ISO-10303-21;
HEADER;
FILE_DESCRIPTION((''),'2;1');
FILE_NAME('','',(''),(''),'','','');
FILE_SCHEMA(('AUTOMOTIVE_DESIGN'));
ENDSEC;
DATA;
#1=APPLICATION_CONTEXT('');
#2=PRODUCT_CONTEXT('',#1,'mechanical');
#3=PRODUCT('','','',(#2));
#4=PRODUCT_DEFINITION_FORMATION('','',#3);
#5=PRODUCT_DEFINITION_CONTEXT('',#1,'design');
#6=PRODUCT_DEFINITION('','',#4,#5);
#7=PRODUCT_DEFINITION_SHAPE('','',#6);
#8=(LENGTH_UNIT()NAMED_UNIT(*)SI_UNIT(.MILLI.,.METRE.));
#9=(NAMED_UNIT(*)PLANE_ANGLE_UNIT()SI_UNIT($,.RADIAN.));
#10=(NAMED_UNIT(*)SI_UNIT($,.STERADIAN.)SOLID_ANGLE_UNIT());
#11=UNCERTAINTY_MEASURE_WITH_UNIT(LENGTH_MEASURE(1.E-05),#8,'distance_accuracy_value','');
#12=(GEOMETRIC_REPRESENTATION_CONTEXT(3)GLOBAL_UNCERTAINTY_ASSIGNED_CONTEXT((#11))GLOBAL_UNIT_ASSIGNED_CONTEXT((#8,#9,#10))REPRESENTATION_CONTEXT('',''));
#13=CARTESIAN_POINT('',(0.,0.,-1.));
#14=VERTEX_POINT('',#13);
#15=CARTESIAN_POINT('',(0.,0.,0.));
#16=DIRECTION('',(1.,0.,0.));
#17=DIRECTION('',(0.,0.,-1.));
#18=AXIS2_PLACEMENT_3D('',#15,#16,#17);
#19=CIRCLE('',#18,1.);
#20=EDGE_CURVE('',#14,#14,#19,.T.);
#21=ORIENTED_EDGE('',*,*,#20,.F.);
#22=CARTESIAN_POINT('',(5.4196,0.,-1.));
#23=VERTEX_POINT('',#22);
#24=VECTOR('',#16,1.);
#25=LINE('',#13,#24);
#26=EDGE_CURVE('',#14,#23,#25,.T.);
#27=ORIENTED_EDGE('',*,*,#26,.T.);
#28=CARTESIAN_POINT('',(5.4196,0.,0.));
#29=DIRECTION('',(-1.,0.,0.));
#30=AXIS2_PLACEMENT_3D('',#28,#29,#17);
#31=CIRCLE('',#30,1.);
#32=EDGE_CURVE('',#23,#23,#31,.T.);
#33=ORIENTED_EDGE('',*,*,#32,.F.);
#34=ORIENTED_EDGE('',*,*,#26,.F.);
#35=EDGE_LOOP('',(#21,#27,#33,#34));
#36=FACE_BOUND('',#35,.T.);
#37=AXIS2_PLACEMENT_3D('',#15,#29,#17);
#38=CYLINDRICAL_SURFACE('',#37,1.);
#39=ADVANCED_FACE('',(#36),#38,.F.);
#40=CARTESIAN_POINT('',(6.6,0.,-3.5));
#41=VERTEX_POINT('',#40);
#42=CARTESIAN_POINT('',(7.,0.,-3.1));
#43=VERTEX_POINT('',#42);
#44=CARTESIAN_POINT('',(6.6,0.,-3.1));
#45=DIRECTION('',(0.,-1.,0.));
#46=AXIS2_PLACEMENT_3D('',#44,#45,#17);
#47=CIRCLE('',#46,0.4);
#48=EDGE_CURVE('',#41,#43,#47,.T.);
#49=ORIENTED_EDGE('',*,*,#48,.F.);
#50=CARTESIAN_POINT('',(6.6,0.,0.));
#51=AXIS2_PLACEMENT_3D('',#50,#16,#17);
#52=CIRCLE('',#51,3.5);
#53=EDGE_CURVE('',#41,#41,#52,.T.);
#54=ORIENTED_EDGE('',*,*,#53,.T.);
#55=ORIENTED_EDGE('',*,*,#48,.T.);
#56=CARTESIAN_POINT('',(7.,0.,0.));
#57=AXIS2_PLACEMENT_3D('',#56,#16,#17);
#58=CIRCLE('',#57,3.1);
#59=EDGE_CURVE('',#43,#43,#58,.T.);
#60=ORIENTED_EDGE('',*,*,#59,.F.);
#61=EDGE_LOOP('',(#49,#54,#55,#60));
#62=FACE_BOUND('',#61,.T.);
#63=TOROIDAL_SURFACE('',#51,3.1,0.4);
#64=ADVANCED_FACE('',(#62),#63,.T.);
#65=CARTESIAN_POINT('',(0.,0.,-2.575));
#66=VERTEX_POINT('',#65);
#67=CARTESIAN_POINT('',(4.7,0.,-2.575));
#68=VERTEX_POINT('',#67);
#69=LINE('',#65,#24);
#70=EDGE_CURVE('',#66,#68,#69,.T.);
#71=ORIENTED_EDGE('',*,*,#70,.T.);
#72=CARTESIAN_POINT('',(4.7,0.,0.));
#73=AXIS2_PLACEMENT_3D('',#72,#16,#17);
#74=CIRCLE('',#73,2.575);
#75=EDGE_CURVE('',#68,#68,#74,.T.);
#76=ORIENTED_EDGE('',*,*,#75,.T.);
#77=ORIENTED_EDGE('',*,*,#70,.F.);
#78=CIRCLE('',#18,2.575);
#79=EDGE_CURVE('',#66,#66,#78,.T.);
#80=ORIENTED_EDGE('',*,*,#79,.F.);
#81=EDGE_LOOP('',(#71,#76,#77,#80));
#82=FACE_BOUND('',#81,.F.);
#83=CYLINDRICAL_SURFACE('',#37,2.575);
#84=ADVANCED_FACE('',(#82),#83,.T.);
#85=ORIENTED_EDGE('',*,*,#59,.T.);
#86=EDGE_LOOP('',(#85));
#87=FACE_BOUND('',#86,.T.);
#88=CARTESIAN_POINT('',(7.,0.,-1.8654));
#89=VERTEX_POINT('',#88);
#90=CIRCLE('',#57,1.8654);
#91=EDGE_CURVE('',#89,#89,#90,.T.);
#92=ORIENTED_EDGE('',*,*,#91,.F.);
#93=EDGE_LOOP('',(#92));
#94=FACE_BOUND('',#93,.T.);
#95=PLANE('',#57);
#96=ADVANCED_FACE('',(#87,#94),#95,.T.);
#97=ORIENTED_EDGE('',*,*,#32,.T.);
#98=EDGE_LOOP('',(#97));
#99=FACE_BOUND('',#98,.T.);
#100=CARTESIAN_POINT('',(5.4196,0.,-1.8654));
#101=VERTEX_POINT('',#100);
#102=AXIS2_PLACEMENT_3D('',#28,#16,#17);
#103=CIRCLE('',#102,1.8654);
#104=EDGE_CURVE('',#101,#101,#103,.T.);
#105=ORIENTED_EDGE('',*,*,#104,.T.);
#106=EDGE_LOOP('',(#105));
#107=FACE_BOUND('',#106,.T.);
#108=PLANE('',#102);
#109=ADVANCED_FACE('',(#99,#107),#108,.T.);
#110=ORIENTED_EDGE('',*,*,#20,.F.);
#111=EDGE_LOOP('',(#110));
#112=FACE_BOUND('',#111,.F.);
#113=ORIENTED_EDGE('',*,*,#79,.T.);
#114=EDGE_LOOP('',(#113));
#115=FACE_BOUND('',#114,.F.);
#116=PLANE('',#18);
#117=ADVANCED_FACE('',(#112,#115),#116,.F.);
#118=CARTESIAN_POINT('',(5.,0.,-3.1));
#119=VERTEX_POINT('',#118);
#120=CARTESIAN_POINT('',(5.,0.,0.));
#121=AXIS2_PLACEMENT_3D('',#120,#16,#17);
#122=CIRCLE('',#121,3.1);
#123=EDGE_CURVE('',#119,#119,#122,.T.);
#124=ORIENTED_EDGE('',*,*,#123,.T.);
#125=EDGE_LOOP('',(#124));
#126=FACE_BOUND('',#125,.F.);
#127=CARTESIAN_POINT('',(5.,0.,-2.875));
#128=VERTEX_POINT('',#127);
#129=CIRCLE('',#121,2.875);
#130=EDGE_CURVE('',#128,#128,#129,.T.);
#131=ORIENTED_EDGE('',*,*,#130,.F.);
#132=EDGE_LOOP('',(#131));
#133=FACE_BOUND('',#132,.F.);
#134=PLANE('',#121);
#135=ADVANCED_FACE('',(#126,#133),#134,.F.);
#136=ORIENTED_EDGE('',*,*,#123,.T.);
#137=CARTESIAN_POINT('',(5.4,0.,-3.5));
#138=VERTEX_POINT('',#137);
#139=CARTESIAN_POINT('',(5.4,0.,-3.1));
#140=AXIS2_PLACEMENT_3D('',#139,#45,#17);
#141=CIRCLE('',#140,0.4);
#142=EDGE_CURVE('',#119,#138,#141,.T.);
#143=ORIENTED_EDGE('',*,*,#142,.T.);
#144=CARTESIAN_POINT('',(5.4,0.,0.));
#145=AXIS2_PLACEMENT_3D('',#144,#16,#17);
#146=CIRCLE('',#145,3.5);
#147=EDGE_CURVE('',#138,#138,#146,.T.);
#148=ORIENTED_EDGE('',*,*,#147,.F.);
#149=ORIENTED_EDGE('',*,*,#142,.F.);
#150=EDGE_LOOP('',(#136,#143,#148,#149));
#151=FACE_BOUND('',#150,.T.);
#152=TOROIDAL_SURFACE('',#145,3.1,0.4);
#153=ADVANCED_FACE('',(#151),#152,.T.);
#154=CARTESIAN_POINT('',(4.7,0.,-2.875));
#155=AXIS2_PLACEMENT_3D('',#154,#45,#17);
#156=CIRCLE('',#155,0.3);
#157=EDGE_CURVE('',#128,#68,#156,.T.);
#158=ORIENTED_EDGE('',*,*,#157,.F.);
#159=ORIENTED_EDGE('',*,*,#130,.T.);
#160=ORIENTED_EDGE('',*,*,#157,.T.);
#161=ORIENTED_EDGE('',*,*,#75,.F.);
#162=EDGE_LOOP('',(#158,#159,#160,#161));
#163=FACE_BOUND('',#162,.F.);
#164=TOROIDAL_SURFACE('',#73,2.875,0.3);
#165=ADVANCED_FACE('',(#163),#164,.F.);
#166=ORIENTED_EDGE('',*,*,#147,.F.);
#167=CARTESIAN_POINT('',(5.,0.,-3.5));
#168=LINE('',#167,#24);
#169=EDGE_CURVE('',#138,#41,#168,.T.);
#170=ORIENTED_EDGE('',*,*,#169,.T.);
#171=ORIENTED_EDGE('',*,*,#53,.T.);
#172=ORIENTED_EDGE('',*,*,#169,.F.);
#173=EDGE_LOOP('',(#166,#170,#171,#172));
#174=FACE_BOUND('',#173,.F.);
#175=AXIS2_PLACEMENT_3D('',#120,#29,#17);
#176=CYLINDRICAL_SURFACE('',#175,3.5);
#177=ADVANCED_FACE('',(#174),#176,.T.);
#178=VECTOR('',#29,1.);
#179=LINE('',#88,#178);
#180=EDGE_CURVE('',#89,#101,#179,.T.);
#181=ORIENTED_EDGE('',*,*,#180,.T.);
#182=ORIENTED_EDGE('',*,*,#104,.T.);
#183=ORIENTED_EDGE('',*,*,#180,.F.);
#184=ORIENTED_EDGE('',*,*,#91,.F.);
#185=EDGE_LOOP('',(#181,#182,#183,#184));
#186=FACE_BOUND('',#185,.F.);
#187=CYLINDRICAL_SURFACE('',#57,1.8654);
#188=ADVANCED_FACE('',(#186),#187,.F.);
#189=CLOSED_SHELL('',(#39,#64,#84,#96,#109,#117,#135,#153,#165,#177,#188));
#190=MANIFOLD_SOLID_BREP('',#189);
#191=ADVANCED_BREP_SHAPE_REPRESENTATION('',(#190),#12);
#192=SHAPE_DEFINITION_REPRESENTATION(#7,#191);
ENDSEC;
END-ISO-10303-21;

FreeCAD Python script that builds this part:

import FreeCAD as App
import Part
import Sketcher
Q = App.Units.Quantity


def edges_at(feature, points):
    """Names of the edges that pass closest to the given points."""
    edges = feature.Shape.Edges
    near = lambda p: min(range(len(edges)), key=lambda i: edges[i].distToShape(Part.Vertex(*p))[0])
    return sorted({f"Edge{near(p) + 1}" for p in points})

doc = App.newDocument("Part")
body = doc.addObject("PartDesign::Body", "Body")

sketch1 = doc.addObject("Sketcher::SketchObject", "Sketch")
body.addObject(sketch1)
sketch1.AttachmentSupport = (doc.YZ_Plane, [""])
sketch1.MapMode = "FlatFace"
sketch1.addGeometry(Part.Circle(App.Vector(0, 0, 0), App.Vector(0, 0, 1), 2.6), False)
sketch1.addConstraint([
    Sketcher.Constraint("Coincident", 0, 3, -1, 1),
    Sketcher.Constraint("Diameter", 0, Q("5.15 mm")),
])
pad1 = doc.addObject("PartDesign::Pad", "Pad")
body.addObject(pad1)
pad1.Profile = sketch1
pad1.Length = 5

sketch2 = doc.addObject("Sketcher::SketchObject", "Sketch001")
body.addObject(sketch2)
sketch2.AttachmentSupport = (doc.YZ_Plane, [""])
sketch2.MapMode = "FlatFace"
sketch2.AttachmentOffset = App.Placement(App.Vector(0, 0, 5), App.Rotation())
sketch2.addGeometry(Part.Circle(App.Vector(0, 0, 0), App.Vector(0, 0, 1), 3.5), False)
sketch2.addConstraint([
    Sketcher.Constraint("Coincident", 0, 3, -1, 1),
    Sketcher.Constraint("Diameter", 0, Q("7 mm")),
])
pad2 = doc.addObject("PartDesign::Pad", "Pad001")
body.addObject(pad2)
pad2.Profile = sketch2
pad2.Length = 2

sketch3 = doc.addObject("Sketcher::SketchObject", "Sketch002")
body.addObject(sketch3)
sketch3.AttachmentSupport = (doc.YZ_Plane, [""])
sketch3.MapMode = "FlatFace"
sketch3.addGeometry(Part.Circle(App.Vector(0, 0, 0), App.Vector(0, 0, 1), 1), False)
sketch3.addConstraint([
    Sketcher.Constraint("Coincident", 0, 3, -1, 1),
    Sketcher.Constraint("Diameter", 0, Q("2 mm")),
])
pocket1 = doc.addObject("PartDesign::Pocket", "Pocket")
body.addObject(pocket1)
pocket1.Profile = sketch3
pocket1.Length = 7
pocket1.Reversed = True
doc.recompute()

fillet = doc.addObject("PartDesign::Fillet", "Fillet")
body.addObject(fillet)
fillet.Base = (pocket1, edges_at(pocket1, [(5, -0.931, 2.401)]))
fillet.Radius = 0.3
doc.recompute()

fillet2 = doc.addObject("PartDesign::Fillet", "Fillet001")
body.addObject(fillet2)
fillet2.Base = (fillet, edges_at(fillet, [(5, -1.266, 3.263), (7, -1.266, 3.263)]))
fillet2.Radius = 0.4

sketch4 = doc.addObject("Sketcher::SketchObject", "Sketch003")
body.addObject(sketch4)
sketch4.AttachmentSupport = (doc.YZ_Plane, [""])
sketch4.MapMode = "FlatFace"
sketch4.AttachmentOffset = App.Placement(App.Vector(0, 0, 7), App.Rotation())
sketch4.addGeometry(Part.Circle(App.Vector(0, 0, 0), App.Vector(0, 0, 1), 1.9), False)
sketch4.addConstraint([
    Sketcher.Constraint("Coincident", 0, 3, -1, 1),
    Sketcher.Constraint("Diameter", 0, Q("3.7308 mm")),
])
pocket2 = doc.addObject("PartDesign::Pocket", "Pocket001")
body.addObject(pocket2)
pocket2.Profile = sketch4
pocket2.Length = 1.5804

doc.recompute()
